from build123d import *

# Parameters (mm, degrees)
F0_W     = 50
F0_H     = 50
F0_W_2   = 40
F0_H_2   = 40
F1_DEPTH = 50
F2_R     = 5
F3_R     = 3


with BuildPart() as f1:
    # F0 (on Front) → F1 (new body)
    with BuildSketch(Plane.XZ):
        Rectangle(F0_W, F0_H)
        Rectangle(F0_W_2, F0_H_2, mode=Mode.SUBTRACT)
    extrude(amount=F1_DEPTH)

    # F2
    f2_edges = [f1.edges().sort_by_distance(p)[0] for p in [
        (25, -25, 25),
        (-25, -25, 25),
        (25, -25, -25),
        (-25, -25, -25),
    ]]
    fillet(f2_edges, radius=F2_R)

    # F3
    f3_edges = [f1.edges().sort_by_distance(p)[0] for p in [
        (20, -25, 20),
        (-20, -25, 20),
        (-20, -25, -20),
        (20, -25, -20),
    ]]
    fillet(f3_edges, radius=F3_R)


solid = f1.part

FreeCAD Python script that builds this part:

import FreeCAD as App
import Part
import Sketcher
from FreeCAD import Vector


def edges_at(feature, points):
    """Names of the edges that pass closest to the given points."""
    edges = feature.Shape.Edges
    near = lambda p: min(range(len(edges)), key=lambda i: edges[i].distToShape(Part.Vertex(*p))[0])
    return sorted({f"Edge{near(p) + 1}" for p in points})

doc = App.newDocument("Part")
body = doc.addObject("PartDesign::Body", "Body")

# Sketch on XZ plane
sketch1 = doc.addObject("Sketcher::SketchObject", "Sketch")
body.addObject(sketch1)
sketch1.AttachmentSupport = (doc.XZ_Plane, [""])
sketch1.MapMode = "FlatFace"
sketch1.addGeometry([
    Part.LineSegment(Vector(-25, 25, 0), Vector(-25, -25, 0)),  # 0
    Part.LineSegment(Vector(-25, -25, 0), Vector(25, -25, 0)),  # 1
    Part.LineSegment(Vector(25, -25, 0), Vector(25, 25, 0)),  # 2
    Part.LineSegment(Vector(25, 25, 0), Vector(-25, 25, 0)),  # 3
    Part.LineSegment(Vector(20, -20, 0), Vector(-20, -20, 0)),  # 4
    Part.LineSegment(Vector(-20, -20, 0), Vector(-20, 20, 0)),  # 5
    Part.LineSegment(Vector(-20, 20, 0), Vector(20, 20, 0)),  # 6
    Part.LineSegment(Vector(20, 20, 0), Vector(20, -20, 0)),  # 7
], False)
sketch1.addConstraint([
    Sketcher.Constraint("Coincident", 0, 2, 1, 1),
    Sketcher.Constraint("Coincident", 1, 2, 2, 1),
    Sketcher.Constraint("Coincident", 2, 2, 3, 1),
    Sketcher.Constraint("Coincident", 3, 2, 0, 1),
    Sketcher.Constraint("Coincident", 4, 2, 5, 1),
    Sketcher.Constraint("Coincident", 5, 2, 6, 1),
    Sketcher.Constraint("Coincident", 6, 2, 7, 1),
    Sketcher.Constraint("Coincident", 7, 2, 4, 1),
    Sketcher.Constraint("Vertical", 0),
    Sketcher.Constraint("Horizontal", 1),
    Sketcher.Constraint("Vertical", 2),
    Sketcher.Constraint("Horizontal", 3),
    Sketcher.Constraint("Horizontal", 4),
    Sketcher.Constraint("Vertical", 5),
    Sketcher.Constraint("Horizontal", 6),
    Sketcher.Constraint("Vertical", 7),
    Sketcher.Constraint("Symmetric", 0, 2, 2, 2, -1, 1),
    Sketcher.Constraint("Symmetric", 4, 2, 6, 2, -1, 1),
    Sketcher.Constraint("Equal", 3, 0),
    Sketcher.Constraint("Equal", 6, 5),
    Sketcher.Constraint("DistanceX", 1, 1, 1, 2, 50.0),
    Sketcher.Constraint("DistanceX", 4, 2, 4, 1, 40.0),
])
pad1 = doc.addObject("PartDesign::Pad", "Pad")
body.addObject(pad1)
pad1.Profile = sketch1
pad1.Length = 50
doc.recompute()

fillet = doc.addObject("PartDesign::Fillet", "Fillet")
body.addObject(fillet)
fillet.Base = (pad1, edges_at(pad1, [
    (25, -25, 25),
    (-25, -25, 25),
    (25, -25, -25),
    (-25, -25, -25),
]))
fillet.Radius = 5
doc.recompute()

fillet2 = doc.addObject("PartDesign::Fillet", "Fillet001")
body.addObject(fillet2)
fillet2.Base = (fillet, edges_at(fillet, [
    (20, -25, 20),
    (-20, -25, 20),
    (-20, -25, -20),
    (20, -25, -20),
]))
fillet2.Radius = 3

doc.recompute()
